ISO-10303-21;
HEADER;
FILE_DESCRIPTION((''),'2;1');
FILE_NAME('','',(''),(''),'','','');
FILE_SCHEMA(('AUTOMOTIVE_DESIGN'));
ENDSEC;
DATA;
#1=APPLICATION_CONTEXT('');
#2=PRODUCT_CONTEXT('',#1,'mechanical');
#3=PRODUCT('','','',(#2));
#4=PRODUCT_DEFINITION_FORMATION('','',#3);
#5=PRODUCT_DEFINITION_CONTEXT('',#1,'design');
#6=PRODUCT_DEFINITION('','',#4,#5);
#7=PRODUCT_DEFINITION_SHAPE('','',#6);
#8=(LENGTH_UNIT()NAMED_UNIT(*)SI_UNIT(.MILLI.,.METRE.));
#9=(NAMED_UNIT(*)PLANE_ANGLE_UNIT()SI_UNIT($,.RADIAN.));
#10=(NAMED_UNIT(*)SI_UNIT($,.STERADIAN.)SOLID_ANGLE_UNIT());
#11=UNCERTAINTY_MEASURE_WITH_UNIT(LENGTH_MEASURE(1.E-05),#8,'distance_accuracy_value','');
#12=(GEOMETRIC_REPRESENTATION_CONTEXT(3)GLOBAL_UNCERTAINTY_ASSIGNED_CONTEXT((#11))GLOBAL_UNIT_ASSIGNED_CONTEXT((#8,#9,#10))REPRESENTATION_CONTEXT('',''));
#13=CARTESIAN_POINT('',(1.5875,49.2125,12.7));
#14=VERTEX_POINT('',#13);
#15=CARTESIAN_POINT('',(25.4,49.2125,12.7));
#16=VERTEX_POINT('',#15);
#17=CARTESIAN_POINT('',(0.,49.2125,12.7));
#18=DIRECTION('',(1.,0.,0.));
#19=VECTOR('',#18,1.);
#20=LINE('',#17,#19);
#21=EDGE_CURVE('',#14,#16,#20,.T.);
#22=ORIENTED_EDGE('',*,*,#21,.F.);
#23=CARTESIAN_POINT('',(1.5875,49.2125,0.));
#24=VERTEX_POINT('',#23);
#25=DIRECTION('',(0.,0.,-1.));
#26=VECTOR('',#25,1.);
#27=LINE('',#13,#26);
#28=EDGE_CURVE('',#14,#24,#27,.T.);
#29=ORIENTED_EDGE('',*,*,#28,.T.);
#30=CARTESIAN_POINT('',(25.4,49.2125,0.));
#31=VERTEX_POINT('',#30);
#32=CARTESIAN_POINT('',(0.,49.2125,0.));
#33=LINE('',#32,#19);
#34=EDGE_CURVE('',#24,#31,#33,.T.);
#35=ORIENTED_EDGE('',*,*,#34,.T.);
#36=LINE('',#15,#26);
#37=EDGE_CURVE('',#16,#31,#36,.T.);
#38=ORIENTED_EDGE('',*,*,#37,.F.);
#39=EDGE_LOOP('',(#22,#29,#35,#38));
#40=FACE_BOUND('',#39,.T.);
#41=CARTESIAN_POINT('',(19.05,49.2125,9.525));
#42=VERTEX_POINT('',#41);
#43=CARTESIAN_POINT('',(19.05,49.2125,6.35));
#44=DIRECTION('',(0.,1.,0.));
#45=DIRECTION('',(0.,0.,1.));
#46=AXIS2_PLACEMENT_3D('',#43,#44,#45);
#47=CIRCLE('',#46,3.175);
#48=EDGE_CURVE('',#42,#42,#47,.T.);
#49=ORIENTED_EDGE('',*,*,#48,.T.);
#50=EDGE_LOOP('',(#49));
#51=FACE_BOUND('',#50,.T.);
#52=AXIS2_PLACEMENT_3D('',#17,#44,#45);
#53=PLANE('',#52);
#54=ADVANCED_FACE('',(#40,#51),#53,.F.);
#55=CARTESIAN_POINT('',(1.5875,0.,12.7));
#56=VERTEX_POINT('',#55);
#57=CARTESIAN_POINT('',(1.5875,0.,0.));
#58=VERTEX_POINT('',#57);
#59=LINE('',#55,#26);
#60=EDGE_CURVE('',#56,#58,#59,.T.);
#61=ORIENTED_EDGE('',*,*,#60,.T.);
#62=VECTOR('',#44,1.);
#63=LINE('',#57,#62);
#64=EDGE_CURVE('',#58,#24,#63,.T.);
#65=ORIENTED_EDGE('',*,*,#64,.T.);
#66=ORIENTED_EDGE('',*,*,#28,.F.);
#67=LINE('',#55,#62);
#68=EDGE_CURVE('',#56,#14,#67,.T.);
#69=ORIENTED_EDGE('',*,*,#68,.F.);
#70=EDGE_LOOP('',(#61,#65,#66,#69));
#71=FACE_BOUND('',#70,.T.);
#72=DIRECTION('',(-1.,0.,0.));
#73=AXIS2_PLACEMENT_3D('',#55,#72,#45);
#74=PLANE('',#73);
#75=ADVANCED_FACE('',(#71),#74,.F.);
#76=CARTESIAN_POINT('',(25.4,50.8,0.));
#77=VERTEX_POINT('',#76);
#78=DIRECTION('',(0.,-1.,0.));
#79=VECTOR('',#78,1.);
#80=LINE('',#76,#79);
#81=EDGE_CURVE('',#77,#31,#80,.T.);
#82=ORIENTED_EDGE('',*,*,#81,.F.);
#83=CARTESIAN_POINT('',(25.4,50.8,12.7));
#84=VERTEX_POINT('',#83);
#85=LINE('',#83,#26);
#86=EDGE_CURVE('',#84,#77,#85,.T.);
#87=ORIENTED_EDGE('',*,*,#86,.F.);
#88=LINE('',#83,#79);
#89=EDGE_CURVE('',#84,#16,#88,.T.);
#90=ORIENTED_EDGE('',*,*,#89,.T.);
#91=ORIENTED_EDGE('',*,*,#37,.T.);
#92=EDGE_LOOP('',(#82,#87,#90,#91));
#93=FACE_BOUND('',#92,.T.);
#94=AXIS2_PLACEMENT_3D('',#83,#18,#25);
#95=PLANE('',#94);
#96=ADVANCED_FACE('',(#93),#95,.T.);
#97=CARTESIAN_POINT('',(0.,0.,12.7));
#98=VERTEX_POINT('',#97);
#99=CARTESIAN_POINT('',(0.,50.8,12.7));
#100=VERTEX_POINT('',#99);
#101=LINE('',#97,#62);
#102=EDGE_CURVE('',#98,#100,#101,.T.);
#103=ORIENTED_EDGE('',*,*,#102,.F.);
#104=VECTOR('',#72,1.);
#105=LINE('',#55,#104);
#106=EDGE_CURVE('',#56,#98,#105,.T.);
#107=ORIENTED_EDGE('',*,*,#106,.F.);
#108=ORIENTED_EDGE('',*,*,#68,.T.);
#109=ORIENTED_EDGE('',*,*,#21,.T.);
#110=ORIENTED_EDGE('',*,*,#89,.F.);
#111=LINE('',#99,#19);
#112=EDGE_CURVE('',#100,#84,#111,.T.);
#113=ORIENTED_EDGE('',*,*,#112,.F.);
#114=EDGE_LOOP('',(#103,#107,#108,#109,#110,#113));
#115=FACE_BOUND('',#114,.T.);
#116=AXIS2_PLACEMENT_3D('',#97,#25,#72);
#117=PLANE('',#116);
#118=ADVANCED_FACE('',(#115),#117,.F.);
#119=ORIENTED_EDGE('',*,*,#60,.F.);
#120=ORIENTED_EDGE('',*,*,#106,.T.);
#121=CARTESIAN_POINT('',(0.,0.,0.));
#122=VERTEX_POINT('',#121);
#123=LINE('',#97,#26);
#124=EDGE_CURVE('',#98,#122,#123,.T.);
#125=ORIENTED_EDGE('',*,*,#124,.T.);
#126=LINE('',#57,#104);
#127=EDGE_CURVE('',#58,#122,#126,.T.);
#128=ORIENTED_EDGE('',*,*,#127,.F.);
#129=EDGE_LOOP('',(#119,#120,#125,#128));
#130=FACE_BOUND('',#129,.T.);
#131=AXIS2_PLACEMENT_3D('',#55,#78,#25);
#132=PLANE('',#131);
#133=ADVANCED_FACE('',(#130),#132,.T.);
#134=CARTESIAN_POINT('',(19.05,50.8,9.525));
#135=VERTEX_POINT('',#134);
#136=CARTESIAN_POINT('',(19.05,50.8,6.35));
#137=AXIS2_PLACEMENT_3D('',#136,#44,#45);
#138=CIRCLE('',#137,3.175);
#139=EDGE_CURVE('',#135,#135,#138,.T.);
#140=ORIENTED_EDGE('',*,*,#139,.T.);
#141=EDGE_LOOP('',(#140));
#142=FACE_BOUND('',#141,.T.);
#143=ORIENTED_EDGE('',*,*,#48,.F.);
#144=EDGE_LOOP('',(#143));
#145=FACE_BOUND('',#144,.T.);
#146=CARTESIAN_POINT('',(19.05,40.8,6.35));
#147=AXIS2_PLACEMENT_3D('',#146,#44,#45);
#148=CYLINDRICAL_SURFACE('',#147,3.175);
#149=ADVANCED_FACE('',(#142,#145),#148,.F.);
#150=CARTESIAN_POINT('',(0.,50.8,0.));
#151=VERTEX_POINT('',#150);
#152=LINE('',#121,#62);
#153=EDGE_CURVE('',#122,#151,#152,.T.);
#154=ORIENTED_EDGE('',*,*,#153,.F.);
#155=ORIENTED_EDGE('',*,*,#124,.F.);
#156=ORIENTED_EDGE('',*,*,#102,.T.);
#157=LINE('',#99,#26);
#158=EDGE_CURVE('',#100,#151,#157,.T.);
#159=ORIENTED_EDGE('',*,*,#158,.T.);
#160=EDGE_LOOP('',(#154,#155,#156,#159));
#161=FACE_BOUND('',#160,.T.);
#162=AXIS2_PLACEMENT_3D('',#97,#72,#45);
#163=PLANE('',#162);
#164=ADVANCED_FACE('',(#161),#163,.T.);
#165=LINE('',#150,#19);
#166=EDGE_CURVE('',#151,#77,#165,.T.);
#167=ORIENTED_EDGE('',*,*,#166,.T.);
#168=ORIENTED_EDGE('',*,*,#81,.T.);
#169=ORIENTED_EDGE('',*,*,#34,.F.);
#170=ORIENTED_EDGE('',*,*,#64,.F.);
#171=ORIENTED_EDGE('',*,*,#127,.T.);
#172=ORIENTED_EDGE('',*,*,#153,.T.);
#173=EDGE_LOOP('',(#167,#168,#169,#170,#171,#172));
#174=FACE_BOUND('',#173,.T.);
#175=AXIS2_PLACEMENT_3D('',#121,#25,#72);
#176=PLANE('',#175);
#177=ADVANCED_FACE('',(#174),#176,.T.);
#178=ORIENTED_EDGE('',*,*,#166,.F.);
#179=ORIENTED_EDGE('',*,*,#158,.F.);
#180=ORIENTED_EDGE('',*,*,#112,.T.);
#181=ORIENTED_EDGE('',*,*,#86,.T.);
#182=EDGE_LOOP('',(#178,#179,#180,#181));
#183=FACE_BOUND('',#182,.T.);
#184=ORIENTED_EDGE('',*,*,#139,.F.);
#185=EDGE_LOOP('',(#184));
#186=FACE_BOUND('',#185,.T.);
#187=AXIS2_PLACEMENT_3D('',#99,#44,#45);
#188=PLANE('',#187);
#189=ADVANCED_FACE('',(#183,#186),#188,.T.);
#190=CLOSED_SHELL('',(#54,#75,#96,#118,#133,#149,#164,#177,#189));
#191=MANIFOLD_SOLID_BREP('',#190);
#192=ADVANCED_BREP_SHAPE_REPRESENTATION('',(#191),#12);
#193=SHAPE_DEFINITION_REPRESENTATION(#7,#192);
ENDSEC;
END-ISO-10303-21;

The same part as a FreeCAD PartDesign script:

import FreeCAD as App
import Part
import Sketcher
Q = App.Units.Quantity

doc = App.newDocument("Part")
body = doc.addObject("PartDesign::Body", "Body")

# Sketch on XY plane
sketch1 = body.newObject("Sketcher::SketchObject", "Sketch")
sketch1.AttachmentSupport = (doc.getObject("XY_Plane"), [""])
sketch1.MapMode = "FlatFace"
sketch1.addGeometry([
    Part.LineSegment(App.Vector(0, 50.8, 0), App.Vector(0, 0, 0)),  # 0
    Part.LineSegment(App.Vector(0, 0, 0), App.Vector(1.6, 0, 0)),  # 1
    Part.LineSegment(App.Vector(1.6, 0, 0), App.Vector(1.6, 49.2, 0)),  # 2
    Part.LineSegment(App.Vector(1.6, 49.2, 0), App.Vector(25.4, 49.2, 0)),  # 3
    Part.LineSegment(App.Vector(25.4, 49.2, 0), App.Vector(25.4, 50.8, 0)),  # 4
    Part.LineSegment(App.Vector(25.4, 50.8, 0), App.Vector(0, 50.8, 0)),  # 5
], False)
sketch1.addConstraint([
    Sketcher.Constraint("Coincident", 0, 2, 1, 1),
    Sketcher.Constraint("Coincident", 1, 2, 2, 1),
    Sketcher.Constraint("Coincident", 2, 2, 3, 1),
    Sketcher.Constraint("Coincident", 3, 2, 4, 1),
    Sketcher.Constraint("Coincident", 4, 2, 5, 1),
    Sketcher.Constraint("Coincident", 5, 2, 0, 1),
    Sketcher.Constraint("Vertical", 0),
    Sketcher.Constraint("Horizontal", 1),
    Sketcher.Constraint("Vertical", 2),
    Sketcher.Constraint("Horizontal", 3),
    Sketcher.Constraint("Vertical", 4),
    Sketcher.Constraint("Horizontal", 5),
    Sketcher.Constraint("Coincident", 0, 2, -1, 1),
    Sketcher.Constraint("Equal", 1, 4),
    Sketcher.Constraint("DistanceX", 5, 2, 5, 1, Q("1 in")),
    Sketcher.Constraint("DistanceY", 0, 2, 0, 1, Q("2 in")),
    Sketcher.Constraint("DistanceX", 1, 1, 1, 2, Q("0.0625 in")),
])
pad1 = body.newObject("PartDesign::Pad", "Pad")
pad1.Profile = sketch1
pad1.Length = Q("0.5 in")

# Sketch on XZ plane
sketch2 = body.newObject("Sketcher::SketchObject", "Sketch001")
sketch2.AttachmentSupport = (doc.getObject("XZ_Plane"), [""])
sketch2.MapMode = "FlatFace"
sketch2.AttachmentOffset = App.Placement(App.Vector(0, 0, -2 * 25.4), App.Rotation())
sketch2.addGeometry(Part.Circle(App.Vector(19.1, 6.3, 0), App.Vector(0, 0, 1), 3.2), False)
sketch2.addConstraint([
    Sketcher.Constraint("Diameter", 0, Q("0.25 in")),
    Sketcher.Constraint("DistanceX", -1, 1, 0, 3, Q("0.75 in")),
    Sketcher.Constraint("DistanceY", -1, 1, 0, 3, Q("0.25 in")),
])
pocket1 = body.newObject("PartDesign::Pocket", "Pocket")
pocket1.Profile = sketch2
pocket1.Length = 10
pocket1.Reversed = True

doc.recompute()
